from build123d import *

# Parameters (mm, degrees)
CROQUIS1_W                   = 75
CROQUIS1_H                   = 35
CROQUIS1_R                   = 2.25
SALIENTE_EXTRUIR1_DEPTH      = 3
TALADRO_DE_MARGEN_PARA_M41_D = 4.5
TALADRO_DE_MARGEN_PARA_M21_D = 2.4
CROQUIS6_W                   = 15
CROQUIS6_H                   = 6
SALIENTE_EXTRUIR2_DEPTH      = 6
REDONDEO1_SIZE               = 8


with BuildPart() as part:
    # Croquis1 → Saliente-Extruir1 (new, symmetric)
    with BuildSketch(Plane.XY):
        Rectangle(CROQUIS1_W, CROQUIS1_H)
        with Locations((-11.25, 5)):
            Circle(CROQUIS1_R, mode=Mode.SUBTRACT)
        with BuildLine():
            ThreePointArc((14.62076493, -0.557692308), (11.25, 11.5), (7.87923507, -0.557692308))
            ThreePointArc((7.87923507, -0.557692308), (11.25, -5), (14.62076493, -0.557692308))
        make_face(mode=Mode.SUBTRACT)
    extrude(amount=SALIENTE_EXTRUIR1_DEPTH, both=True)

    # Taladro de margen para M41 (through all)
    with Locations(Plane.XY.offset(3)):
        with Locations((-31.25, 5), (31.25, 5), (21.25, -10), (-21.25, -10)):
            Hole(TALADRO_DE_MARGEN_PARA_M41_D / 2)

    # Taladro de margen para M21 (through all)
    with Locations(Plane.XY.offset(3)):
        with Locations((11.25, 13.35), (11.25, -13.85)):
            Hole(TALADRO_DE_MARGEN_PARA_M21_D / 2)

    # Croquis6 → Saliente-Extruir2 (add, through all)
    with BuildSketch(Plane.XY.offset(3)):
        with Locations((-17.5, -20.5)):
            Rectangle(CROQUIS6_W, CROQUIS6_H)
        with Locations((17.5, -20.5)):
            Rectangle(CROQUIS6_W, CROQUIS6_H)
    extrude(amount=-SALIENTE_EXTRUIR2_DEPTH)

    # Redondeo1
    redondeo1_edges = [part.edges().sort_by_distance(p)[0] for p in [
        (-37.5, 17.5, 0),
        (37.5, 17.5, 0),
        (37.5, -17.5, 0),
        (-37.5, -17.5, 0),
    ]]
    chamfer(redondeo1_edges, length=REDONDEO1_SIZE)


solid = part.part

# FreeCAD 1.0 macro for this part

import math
import FreeCAD as App
import Part
import Sketcher

V = App.Vector
Q = App.Units.Quantity


def edges_at(feature, points):
    """Names of the edges that pass closest to the given points."""
    edges = feature.Shape.Edges
    near = lambda p: min(range(len(edges)), key=lambda i: edges[i].distToShape(Part.Vertex(*p))[0])
    return sorted({f"Edge{near(p) + 1}" for p in points})


def add_polygon(sketch, points):
    """Adds a closed chain of lines whose ends are joined by coincident constraints."""
    first, n = sketch.GeometryCount, len(points)
    for a, b in zip(points, points[1:] + points[:1]):
        sketch.addGeometry(Part.LineSegment(App.Vector(*a, 0), App.Vector(*b, 0)), False)
    for i in range(n):
        sketch.addConstraint(Sketcher.Constraint("Coincident", first + i, 2, first + (i + 1) % n, 1))

doc = App.newDocument("Part")
params = doc.addObject("Spreadsheet::Sheet", "Params")
for row, (alias, value) in enumerate([
    ("sketch1_diameter", "4.5 mm"),
    ("sketch1_radius", "6.5 mm"),
    ("sketch1_radius2", "3.5 mm"),
    ("sketch1_width", "75 mm"),
    ("sketch1_height", "35 mm"),
    ("pad1_length", "6 mm"),
    ("sketch2_diameter", "4.5 mm"),
    ("hole_diameter", "4.5 mm"),
    ("sketch3_diameter", "2.4 mm"),
    ("hole2_diameter", "2.4 mm"),
    ("sketch4_width", "15 mm"),
    ("sketch4_height", "6 mm"),
    ("pad2_length", "6 mm"),
    ("chamfer_size", "8 mm"),
], start=1):
    params.set(f"A{row}", alias)
    params.set(f"B{row}", "=" + value)
    params.setAlias(f"B{row}", alias)

body = doc.addObject("PartDesign::Body", "Body")

# Sketch on XY plane
sketch1 = body.newObject("Sketcher::SketchObject", "Sketch")
sketch1.AttachmentSupport = (doc.getObject("XY_Plane"), [""])
sketch1.MapMode = "FlatFace"
add_polygon(sketch1, [(-37.5, 17.5), (-37.5, -17.5), (37.5, -17.5), (37.5, 17.5)])  # lines 0-3
sketch1.addGeometry(Part.Circle(V(-11.2, 5, 0), V(0, 0, 1), 2.2), False)  # 4
sketch1.addGeometry(Part.ArcOfCircle(Part.Circle(V(11.2, 5, 0), V(0, 0, 1), 6.5), math.radians(-59), math.radians(239)), False)  # 5
sketch1.addGeometry(Part.ArcOfCircle(Part.Circle(V(11.2, -1.5, 0), V(0, 0, 1), 3.5), math.radians(164), math.radians(376)), False)  # 6
sketch1.addConstraint([
    Sketcher.Constraint("Coincident", 5, 1, 6, 2),
    Sketcher.Constraint("Coincident", 6, 1, 5, 2),
    Sketcher.Constraint("Vertical", 0),
    Sketcher.Constraint("Horizontal", 1),
    Sketcher.Constraint("Vertical", 2),
    Sketcher.Constraint("Horizontal", 3),
    Sketcher.Constraint("Symmetric", 0, 2, 2, 2, -1, 1),
    Sketcher.Constraint("Symmetric", 4, 3, 5, 3, -2),
    Sketcher.Constraint("Horizontal", 5, 1, 6, 1),
    Sketcher.Constraint("Diameter", 4, Q("4.5 mm")),
    Sketcher.Constraint("Radius", 5, Q("6.5 mm")),
    Sketcher.Constraint("Radius", 6, Q("3.5 mm")),
    Sketcher.Constraint("DistanceX", 1, 1, 1, 2, Q("75 mm")),
    Sketcher.Constraint("DistanceY", 0, 2, 0, 1, Q("35 mm")),
    Sketcher.Constraint("DistanceY", -1, 1, 4, 3, Q("5 mm")),
    Sketcher.Constraint("DistanceY", 0, 2, 6, 3, Q("16 mm")),
    Sketcher.Constraint("DistanceX", 4, 3, 5, 3, Q("22.5 mm")),
])
sketch1.setExpression("Constraints[13]", "Params.sketch1_diameter")
sketch1.setExpression("Constraints[14]", "Params.sketch1_radius")
sketch1.setExpression("Constraints[15]", "Params.sketch1_radius2")
sketch1.setExpression("Constraints[16]", "Params.sketch1_width")
sketch1.setExpression("Constraints[17]", "Params.sketch1_height")
pad1 = body.newObject("PartDesign::Pad", "Pad")
pad1.Profile = sketch1
pad1.setExpression("Length", "Params.pad1_length")
pad1.Midplane = True

# Sketch on XY plane
sketch2 = body.newObject("Sketcher::SketchObject", "Sketch001")
sketch2.AttachmentSupport = (doc.getObject("XY_Plane"), [""])
sketch2.MapMode = "FlatFace"
sketch2.AttachmentOffset = App.Placement(V(0, 0, 3), App.Rotation())
sketch2.addGeometry([
    Part.Circle(V(-31.2, 5, 0), V(0, 0, 1), 2.2),
    Part.Circle(V(31.2, 5, 0), V(0, 0, 1), 2.2),
    Part.Circle(V(21.2, -10, 0), V(0, 0, 1), 2.2),
    Part.Circle(V(-21.2, -10, 0), V(0, 0, 1), 2.2),
], False)
sketch2.addConstraint([
    Sketcher.Constraint("Equal", 0, 1),
    Sketcher.Constraint("Equal", 1, 2),
    Sketcher.Constraint("Equal", 2, 3),
    Sketcher.Constraint("Symmetric", 0, 3, 1, 3, -2),
    Sketcher.Constraint("Symmetric", 2, 3, 3, 3, -2),
    Sketcher.Constraint("Diameter", 0, Q("4.5 mm")),
    Sketcher.Constraint("DistanceY", -1, 1, 0, 3, Q("5 mm")),
    Sketcher.Constraint("DistanceY", 2, 3, -1, 1, Q("10 mm")),
    Sketcher.Constraint("DistanceX", 2, 3, 1, 3, Q("10 mm")),
    Sketcher.Constraint("DistanceX", 0, 3, 1, 3, Q("62.5 mm")),
])
sketch2.setExpression("Constraints[5]", "Params.sketch2_diameter")
doc.recompute()
hole = body.newObject("PartDesign::Hole", "Hole")
hole.Profile = sketch2
hole.ThreadType = "None"
hole.setExpression("Diameter", "Params.hole_diameter")
hole.DepthType = "ThroughAll"

# Sketch on XY plane
sketch3 = body.newObject("Sketcher::SketchObject", "Sketch002")
sketch3.AttachmentSupport = (doc.getObject("XY_Plane"), [""])
sketch3.MapMode = "FlatFace"
sketch3.AttachmentOffset = App.Placement(V(0, 0, 3), App.Rotation())
sketch3.addGeometry([
    Part.Circle(V(11.2, 13.3, 0), V(0, 0, 1), 1.2),
    Part.Circle(V(11.2, -13.8, 0), V(0, 0, 1), 1.2),
], False)
sketch3.addConstraint([
    Sketcher.Constraint("Equal", 0, 1),
    Sketcher.Constraint("Vertical", 0, 3, 1, 3),
    Sketcher.Constraint("Diameter", 0, Q("2.4 mm")),
    Sketcher.Constraint("DistanceY", 1, 3, 0, 3, Q("27.2 mm")),
    Sketcher.Constraint("DistanceX", -1, 1, 0, 3, Q("11.25 mm")),
    Sketcher.Constraint("DistanceY", -1, 1, 0, 3, Q("13.35 mm")),
])
sketch3.setExpression("Constraints[2]", "Params.sketch3_diameter")
doc.recompute()
hole2 = body.newObject("PartDesign::Hole", "Hole001")
hole2.Profile = sketch3
hole2.ThreadType = "None"
hole2.setExpression("Diameter", "Params.hole2_diameter")
hole2.DepthType = "ThroughAll"

# Sketch on XY plane
sketch4 = body.newObject("Sketcher::SketchObject", "Sketch003")
sketch4.AttachmentSupport = (doc.getObject("XY_Plane"), [""])
sketch4.MapMode = "FlatFace"
sketch4.AttachmentOffset = App.Placement(V(0, 0, 3), App.Rotation())
add_polygon(sketch4, [(-25, -18), (-25, -24), (-10, -24), (-10, -18)])  # lines 0-3
add_polygon(sketch4, [(10, -18), (10, -24), (25, -24), (25, -18)])  # lines 4-7
sketch4.addConstraint([
    Sketcher.Constraint("Vertical", 0),
    Sketcher.Constraint("Horizontal", 1),
    Sketcher.Constraint("Vertical", 2),
    Sketcher.Constraint("Horizontal", 3),
    Sketcher.Constraint("Vertical", 4),
    Sketcher.Constraint("Horizontal", 5),
    Sketcher.Constraint("Vertical", 6),
    Sketcher.Constraint("Horizontal", 7),
    Sketcher.Constraint("Symmetric", 1, 2, 4, 2, -2),
    Sketcher.Constraint("Symmetric", 3, 2, 6, 2, -2),
    Sketcher.Constraint("DistanceX", 1, 1, 1, 2, Q("15 mm")),
    Sketcher.Constraint("DistanceY", 0, 2, 0, 1, Q("6 mm")),
    Sketcher.Constraint("DistanceX", 0, 2, -1, 1, Q("25 mm")),
    Sketcher.Constraint("DistanceY", 0, 2, -1, 1, Q("23.5 mm")),
])
sketch4.setExpression("Constraints[18]", "Params.sketch4_width")
sketch4.setExpression("Constraints[19]", "Params.sketch4_height")
pad2 = body.newObject("PartDesign::Pad", "Pad001")
pad2.Profile = sketch4
pad2.setExpression("Length", "Params.pad2_length")
pad2.Reversed = True
doc.recompute()

chamfer = body.newObject("PartDesign::Chamfer", "Chamfer")
chamfer.Base = (pad2, edges_at(pad2, [
    (-37.5, 17.5, 0),
    (37.5, 17.5, 0),
    (37.5, -17.5, 0),
    (-37.5, -17.5, 0),
]))
chamfer.setExpression("Size", "Params.chamfer_size")

doc.recompute()
